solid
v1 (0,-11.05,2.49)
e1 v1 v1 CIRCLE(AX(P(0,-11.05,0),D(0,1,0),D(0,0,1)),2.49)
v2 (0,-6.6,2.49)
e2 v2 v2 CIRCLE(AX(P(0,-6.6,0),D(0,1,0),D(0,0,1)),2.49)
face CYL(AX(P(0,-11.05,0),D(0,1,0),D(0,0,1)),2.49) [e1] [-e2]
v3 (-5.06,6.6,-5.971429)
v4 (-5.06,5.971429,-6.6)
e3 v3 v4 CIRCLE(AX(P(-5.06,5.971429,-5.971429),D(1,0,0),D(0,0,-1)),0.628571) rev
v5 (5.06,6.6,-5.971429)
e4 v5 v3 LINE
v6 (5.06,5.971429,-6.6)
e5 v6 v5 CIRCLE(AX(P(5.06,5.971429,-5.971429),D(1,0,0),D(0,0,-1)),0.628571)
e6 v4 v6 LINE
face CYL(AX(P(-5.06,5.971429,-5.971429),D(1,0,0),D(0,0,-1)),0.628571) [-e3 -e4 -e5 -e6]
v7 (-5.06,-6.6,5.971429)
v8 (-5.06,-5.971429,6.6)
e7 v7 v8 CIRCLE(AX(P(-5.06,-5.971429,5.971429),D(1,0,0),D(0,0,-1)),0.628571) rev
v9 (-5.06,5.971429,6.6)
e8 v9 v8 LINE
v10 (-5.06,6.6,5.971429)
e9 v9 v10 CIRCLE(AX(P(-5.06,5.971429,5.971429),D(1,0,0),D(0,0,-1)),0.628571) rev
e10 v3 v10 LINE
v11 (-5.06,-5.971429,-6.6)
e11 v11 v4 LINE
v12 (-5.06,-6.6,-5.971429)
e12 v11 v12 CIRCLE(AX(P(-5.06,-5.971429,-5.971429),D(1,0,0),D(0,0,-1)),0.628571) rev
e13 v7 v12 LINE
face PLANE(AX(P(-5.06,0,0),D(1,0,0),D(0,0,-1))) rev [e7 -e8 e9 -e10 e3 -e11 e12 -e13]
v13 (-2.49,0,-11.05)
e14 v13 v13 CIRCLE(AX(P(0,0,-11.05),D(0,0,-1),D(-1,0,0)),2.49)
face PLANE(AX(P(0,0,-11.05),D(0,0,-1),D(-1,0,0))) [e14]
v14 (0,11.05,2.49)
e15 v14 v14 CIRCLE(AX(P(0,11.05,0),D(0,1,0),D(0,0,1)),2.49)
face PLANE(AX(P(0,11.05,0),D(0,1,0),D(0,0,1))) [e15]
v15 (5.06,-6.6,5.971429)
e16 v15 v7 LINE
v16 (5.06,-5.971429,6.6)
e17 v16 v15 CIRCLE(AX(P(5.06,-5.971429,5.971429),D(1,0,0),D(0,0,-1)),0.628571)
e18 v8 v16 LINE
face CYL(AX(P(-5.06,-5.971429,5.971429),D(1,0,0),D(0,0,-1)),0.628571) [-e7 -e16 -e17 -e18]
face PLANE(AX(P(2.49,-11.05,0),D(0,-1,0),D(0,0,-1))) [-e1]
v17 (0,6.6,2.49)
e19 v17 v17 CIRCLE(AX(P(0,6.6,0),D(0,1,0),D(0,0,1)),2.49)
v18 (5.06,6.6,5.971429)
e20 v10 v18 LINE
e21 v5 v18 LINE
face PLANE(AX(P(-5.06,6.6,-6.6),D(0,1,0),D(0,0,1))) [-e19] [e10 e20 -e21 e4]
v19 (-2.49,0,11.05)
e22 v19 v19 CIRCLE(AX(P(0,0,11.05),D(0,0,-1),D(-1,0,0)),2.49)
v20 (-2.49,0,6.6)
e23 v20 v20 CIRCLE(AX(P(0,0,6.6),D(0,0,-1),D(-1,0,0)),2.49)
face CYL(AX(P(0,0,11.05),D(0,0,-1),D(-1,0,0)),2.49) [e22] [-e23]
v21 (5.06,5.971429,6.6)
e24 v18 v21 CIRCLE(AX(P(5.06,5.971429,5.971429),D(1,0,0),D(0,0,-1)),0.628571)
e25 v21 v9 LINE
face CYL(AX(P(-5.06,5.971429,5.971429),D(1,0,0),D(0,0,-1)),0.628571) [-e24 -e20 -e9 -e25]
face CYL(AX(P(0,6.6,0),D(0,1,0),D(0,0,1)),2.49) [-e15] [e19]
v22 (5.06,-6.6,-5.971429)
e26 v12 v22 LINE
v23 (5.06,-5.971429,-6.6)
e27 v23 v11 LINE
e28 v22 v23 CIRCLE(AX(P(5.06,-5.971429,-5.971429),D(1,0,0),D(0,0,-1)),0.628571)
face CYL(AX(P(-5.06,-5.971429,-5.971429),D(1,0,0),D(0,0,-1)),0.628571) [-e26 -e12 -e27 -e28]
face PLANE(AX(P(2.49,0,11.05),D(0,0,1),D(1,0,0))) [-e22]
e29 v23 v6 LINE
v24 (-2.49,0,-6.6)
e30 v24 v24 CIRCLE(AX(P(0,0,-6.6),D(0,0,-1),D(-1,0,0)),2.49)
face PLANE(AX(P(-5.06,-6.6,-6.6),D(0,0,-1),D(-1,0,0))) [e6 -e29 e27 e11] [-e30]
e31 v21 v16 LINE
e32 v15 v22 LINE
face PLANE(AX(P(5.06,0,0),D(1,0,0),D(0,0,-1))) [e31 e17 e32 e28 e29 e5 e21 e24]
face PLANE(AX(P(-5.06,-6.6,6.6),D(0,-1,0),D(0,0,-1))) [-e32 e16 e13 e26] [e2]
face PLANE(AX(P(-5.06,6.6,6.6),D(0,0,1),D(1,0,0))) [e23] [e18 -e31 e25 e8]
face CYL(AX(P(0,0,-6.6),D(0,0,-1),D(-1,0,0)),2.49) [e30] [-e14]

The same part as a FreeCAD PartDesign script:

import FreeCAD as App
import Part
import Sketcher
from FreeCAD import Vector


def edges_at(feature, points):
    """Names of the edges that pass closest to the given points."""
    edges = feature.Shape.Edges
    near = lambda p: min(range(len(edges)), key=lambda i: edges[i].distToShape(Part.Vertex(*p))[0])
    return sorted({f"Edge{near(p) + 1}" for p in points})


def add_polygon(sketch, points):
    """Adds a closed chain of lines whose ends are joined by coincident constraints."""
    first, n = sketch.GeometryCount, len(points)
    for a, b in zip(points, points[1:] + points[:1]):
        sketch.addGeometry(Part.LineSegment(App.Vector(*a, 0), App.Vector(*b, 0)), False)
    for i in range(n):
        sketch.addConstraint(Sketcher.Constraint("Coincident", first + i, 2, first + (i + 1) % n, 1))

doc = App.newDocument("Part")
params = doc.addObject("Spreadsheet::Sheet", "Params")
for row, (alias, value) in enumerate([
    ("sketch1_width", "13.2 mm"),
    ("pad1_length", "10.12 mm"),
    ("sketch2_width", "2.49 mm"),
    ("sketch2_height", "4.45 mm"),
    ("revolution_angle", "360 deg"),
    ("sketch3_width", "2.49 mm"),
    ("sketch3_height", "4.45 mm"),
    ("revolution2_angle", "360 deg"),
    ("sketch4_width", "2.49 mm"),
    ("sketch4_height", "4.45 mm"),
    ("revolution3_angle", "360 deg"),
    ("sketch5_width", "2.49 mm"),
    ("sketch5_height", "4.45 mm"),
    ("revolution4_angle", "360 deg"),
    ("fillet_radius", "0.628571 mm"),
], start=1):
    params.set(f"A{row}", alias)
    params.set(f"B{row}", "=" + value)
    params.setAlias(f"B{row}", alias)

body = doc.addObject("PartDesign::Body", "Body")

sketch1 = body.newObject("Sketcher::SketchObject", "Sketch")
sketch1.AttachmentSupport = (doc.getObject("YZ_Plane"), [""])
sketch1.MapMode = "FlatFace"
sketch1.AttachmentOffset = App.Placement(Vector(0, 0, 5.06), App.Rotation())
add_polygon(sketch1, [(6.6, 6.6), (-6.6, 6.6), (-6.6, -6.6), (6.6, -6.6)])
sketch1.addConstraint([
    Sketcher.Constraint("Horizontal", 0),
    Sketcher.Constraint("Vertical", 1),
    Sketcher.Constraint("Horizontal", 2),
    Sketcher.Constraint("Vertical", 3),
    Sketcher.Constraint("Symmetric", 0, 2, 2, 2, -1, 1),
    Sketcher.Constraint("Equal", 2, 1),
    Sketcher.Constraint("DistanceX", 0, 2, 0, 1, 13.2),
])
sketch1.setExpression("Constraints[10]", "Params.sketch1_width")
pad1 = body.newObject("PartDesign::Pad", "Pad")
pad1.Profile = sketch1
pad1.setExpression("Length", "Params.pad1_length")
pad1.Reversed = True

sketch2 = body.newObject("Sketcher::SketchObject", "Sketch001")
sketch2.AttachmentSupport = (doc.getObject("XY_Plane"), [""])
sketch2.MapMode = "FlatFace"
add_polygon(sketch2, [(2.49, 11.05), (2.49, 6.6), (0, 6.6), (0, 11.05)])
sketch2.addConstraint([
    Sketcher.Constraint("Vertical", 0),
    Sketcher.Constraint("Horizontal", 1),
    Sketcher.Constraint("Vertical", 2),
    Sketcher.Constraint("Horizontal", 3),
    Sketcher.Constraint("PointOnObject", 1, 2, -2),
    Sketcher.Constraint("DistanceX", 1, 2, 1, 1, 2.49),
    Sketcher.Constraint("DistanceY", 0, 2, 0, 1, 4.45),
    Sketcher.Constraint("DistanceY", -1, 1, 0, 2, 6.6),
])
sketch2.setExpression("Constraints[9]", "Params.sketch2_width")
sketch2.setExpression("Constraints[10]", "Params.sketch2_height")
revolution = body.newObject("PartDesign::Revolution", "Revolution")
revolution.Profile = sketch2
revolution.ReferenceAxis = (sketch2, ["V_Axis"])
revolution.setExpression("Angle", "Params.revolution_angle")

sketch3 = body.newObject("Sketcher::SketchObject", "Sketch002")
sketch3.AttachmentSupport = (doc.getObject("XZ_Plane"), [""])
sketch3.MapMode = "FlatFace"
add_polygon(sketch3, [(0, -6.6), (0, -11.05), (2.49, -11.05), (2.49, -6.6)])
sketch3.addConstraint([
    Sketcher.Constraint("Vertical", 0),
    Sketcher.Constraint("Horizontal", 1),
    Sketcher.Constraint("Vertical", 2),
    Sketcher.Constraint("Horizontal", 3),
    Sketcher.Constraint("PointOnObject", 0, 2, -2),
    Sketcher.Constraint("DistanceX", 1, 1, 1, 2, 2.49),
    Sketcher.Constraint("DistanceY", 0, 2, 0, 1, 4.45),
    Sketcher.Constraint("DistanceY", 2, 2, -1, 1, 6.6),
])
sketch3.setExpression("Constraints[9]", "Params.sketch3_width")
sketch3.setExpression("Constraints[10]", "Params.sketch3_height")
revolution2 = body.newObject("PartDesign::Revolution", "Revolution001")
revolution2.Profile = sketch3
revolution2.ReferenceAxis = (sketch3, ["V_Axis"])
revolution2.setExpression("Angle", "Params.revolution2_angle")

sketch4 = body.newObject("Sketcher::SketchObject", "Sketch003")
sketch4.AttachmentSupport = (doc.getObject("XY_Plane"), [""])
sketch4.MapMode = "FlatFace"
add_polygon(sketch4, [(2.49, -6.6), (2.49, -11.05), (0, -11.05), (0, -6.6)])
sketch4.addConstraint([
    Sketcher.Constraint("Vertical", 0),
    Sketcher.Constraint("Horizontal", 1),
    Sketcher.Constraint("Vertical", 2),
    Sketcher.Constraint("Horizontal", 3),
    Sketcher.Constraint("PointOnObject", 1, 2, -2),
    Sketcher.Constraint("DistanceX", 1, 2, 1, 1, 2.49),
    Sketcher.Constraint("DistanceY", 0, 2, 0, 1, 4.45),
    Sketcher.Constraint("DistanceY", 2, 2, -1, 1, 6.6),
])
sketch4.setExpression("Constraints[9]", "Params.sketch4_width")
sketch4.setExpression("Constraints[10]", "Params.sketch4_height")
revolution3 = body.newObject("PartDesign::Revolution", "Revolution002")
revolution3.Profile = sketch4
revolution3.ReferenceAxis = (sketch4, ["V_Axis"])
revolution3.setExpression("Angle", "Params.revolution3_angle")

sketch5 = body.newObject("Sketcher::SketchObject", "Sketch004")
sketch5.AttachmentSupport = (doc.getObject("XZ_Plane"), [""])
sketch5.MapMode = "FlatFace"
add_polygon(sketch5, [(0, 11.05), (0, 6.6), (2.49, 6.6), (2.49, 11.05)])
sketch5.addConstraint([
    Sketcher.Constraint("Vertical", 0),
    Sketcher.Constraint("Horizontal", 1),
    Sketcher.Constraint("Vertical", 2),
    Sketcher.Constraint("Horizontal", 3),
    Sketcher.Constraint("PointOnObject", 0, 2, -2),
    Sketcher.Constraint("DistanceX", 1, 1, 1, 2, 2.49),
    Sketcher.Constraint("DistanceY", 0, 2, 0, 1, 4.45),
    Sketcher.Constraint("DistanceY", -1, 1, 0, 2, 6.6),
])
sketch5.setExpression("Constraints[9]", "Params.sketch5_width")
sketch5.setExpression("Constraints[10]", "Params.sketch5_height")
revolution4 = body.newObject("PartDesign::Revolution", "Revolution003")
revolution4.Profile = sketch5
revolution4.ReferenceAxis = (sketch5, ["V_Axis"])
revolution4.setExpression("Angle", "Params.revolution4_angle")
doc.recompute()

fillet = body.newObject("PartDesign::Fillet", "Fillet")
fillet.Base = (revolution4, edges_at(revolution4, [
    (0, 6.6, -6.6),
    (0, -6.6, -6.6),
    (0, -6.6, 6.6),
    (0, 6.6, 6.6),
]))
fillet.setExpression("Radius", "Params.fillet_radius")

doc.recompute()
